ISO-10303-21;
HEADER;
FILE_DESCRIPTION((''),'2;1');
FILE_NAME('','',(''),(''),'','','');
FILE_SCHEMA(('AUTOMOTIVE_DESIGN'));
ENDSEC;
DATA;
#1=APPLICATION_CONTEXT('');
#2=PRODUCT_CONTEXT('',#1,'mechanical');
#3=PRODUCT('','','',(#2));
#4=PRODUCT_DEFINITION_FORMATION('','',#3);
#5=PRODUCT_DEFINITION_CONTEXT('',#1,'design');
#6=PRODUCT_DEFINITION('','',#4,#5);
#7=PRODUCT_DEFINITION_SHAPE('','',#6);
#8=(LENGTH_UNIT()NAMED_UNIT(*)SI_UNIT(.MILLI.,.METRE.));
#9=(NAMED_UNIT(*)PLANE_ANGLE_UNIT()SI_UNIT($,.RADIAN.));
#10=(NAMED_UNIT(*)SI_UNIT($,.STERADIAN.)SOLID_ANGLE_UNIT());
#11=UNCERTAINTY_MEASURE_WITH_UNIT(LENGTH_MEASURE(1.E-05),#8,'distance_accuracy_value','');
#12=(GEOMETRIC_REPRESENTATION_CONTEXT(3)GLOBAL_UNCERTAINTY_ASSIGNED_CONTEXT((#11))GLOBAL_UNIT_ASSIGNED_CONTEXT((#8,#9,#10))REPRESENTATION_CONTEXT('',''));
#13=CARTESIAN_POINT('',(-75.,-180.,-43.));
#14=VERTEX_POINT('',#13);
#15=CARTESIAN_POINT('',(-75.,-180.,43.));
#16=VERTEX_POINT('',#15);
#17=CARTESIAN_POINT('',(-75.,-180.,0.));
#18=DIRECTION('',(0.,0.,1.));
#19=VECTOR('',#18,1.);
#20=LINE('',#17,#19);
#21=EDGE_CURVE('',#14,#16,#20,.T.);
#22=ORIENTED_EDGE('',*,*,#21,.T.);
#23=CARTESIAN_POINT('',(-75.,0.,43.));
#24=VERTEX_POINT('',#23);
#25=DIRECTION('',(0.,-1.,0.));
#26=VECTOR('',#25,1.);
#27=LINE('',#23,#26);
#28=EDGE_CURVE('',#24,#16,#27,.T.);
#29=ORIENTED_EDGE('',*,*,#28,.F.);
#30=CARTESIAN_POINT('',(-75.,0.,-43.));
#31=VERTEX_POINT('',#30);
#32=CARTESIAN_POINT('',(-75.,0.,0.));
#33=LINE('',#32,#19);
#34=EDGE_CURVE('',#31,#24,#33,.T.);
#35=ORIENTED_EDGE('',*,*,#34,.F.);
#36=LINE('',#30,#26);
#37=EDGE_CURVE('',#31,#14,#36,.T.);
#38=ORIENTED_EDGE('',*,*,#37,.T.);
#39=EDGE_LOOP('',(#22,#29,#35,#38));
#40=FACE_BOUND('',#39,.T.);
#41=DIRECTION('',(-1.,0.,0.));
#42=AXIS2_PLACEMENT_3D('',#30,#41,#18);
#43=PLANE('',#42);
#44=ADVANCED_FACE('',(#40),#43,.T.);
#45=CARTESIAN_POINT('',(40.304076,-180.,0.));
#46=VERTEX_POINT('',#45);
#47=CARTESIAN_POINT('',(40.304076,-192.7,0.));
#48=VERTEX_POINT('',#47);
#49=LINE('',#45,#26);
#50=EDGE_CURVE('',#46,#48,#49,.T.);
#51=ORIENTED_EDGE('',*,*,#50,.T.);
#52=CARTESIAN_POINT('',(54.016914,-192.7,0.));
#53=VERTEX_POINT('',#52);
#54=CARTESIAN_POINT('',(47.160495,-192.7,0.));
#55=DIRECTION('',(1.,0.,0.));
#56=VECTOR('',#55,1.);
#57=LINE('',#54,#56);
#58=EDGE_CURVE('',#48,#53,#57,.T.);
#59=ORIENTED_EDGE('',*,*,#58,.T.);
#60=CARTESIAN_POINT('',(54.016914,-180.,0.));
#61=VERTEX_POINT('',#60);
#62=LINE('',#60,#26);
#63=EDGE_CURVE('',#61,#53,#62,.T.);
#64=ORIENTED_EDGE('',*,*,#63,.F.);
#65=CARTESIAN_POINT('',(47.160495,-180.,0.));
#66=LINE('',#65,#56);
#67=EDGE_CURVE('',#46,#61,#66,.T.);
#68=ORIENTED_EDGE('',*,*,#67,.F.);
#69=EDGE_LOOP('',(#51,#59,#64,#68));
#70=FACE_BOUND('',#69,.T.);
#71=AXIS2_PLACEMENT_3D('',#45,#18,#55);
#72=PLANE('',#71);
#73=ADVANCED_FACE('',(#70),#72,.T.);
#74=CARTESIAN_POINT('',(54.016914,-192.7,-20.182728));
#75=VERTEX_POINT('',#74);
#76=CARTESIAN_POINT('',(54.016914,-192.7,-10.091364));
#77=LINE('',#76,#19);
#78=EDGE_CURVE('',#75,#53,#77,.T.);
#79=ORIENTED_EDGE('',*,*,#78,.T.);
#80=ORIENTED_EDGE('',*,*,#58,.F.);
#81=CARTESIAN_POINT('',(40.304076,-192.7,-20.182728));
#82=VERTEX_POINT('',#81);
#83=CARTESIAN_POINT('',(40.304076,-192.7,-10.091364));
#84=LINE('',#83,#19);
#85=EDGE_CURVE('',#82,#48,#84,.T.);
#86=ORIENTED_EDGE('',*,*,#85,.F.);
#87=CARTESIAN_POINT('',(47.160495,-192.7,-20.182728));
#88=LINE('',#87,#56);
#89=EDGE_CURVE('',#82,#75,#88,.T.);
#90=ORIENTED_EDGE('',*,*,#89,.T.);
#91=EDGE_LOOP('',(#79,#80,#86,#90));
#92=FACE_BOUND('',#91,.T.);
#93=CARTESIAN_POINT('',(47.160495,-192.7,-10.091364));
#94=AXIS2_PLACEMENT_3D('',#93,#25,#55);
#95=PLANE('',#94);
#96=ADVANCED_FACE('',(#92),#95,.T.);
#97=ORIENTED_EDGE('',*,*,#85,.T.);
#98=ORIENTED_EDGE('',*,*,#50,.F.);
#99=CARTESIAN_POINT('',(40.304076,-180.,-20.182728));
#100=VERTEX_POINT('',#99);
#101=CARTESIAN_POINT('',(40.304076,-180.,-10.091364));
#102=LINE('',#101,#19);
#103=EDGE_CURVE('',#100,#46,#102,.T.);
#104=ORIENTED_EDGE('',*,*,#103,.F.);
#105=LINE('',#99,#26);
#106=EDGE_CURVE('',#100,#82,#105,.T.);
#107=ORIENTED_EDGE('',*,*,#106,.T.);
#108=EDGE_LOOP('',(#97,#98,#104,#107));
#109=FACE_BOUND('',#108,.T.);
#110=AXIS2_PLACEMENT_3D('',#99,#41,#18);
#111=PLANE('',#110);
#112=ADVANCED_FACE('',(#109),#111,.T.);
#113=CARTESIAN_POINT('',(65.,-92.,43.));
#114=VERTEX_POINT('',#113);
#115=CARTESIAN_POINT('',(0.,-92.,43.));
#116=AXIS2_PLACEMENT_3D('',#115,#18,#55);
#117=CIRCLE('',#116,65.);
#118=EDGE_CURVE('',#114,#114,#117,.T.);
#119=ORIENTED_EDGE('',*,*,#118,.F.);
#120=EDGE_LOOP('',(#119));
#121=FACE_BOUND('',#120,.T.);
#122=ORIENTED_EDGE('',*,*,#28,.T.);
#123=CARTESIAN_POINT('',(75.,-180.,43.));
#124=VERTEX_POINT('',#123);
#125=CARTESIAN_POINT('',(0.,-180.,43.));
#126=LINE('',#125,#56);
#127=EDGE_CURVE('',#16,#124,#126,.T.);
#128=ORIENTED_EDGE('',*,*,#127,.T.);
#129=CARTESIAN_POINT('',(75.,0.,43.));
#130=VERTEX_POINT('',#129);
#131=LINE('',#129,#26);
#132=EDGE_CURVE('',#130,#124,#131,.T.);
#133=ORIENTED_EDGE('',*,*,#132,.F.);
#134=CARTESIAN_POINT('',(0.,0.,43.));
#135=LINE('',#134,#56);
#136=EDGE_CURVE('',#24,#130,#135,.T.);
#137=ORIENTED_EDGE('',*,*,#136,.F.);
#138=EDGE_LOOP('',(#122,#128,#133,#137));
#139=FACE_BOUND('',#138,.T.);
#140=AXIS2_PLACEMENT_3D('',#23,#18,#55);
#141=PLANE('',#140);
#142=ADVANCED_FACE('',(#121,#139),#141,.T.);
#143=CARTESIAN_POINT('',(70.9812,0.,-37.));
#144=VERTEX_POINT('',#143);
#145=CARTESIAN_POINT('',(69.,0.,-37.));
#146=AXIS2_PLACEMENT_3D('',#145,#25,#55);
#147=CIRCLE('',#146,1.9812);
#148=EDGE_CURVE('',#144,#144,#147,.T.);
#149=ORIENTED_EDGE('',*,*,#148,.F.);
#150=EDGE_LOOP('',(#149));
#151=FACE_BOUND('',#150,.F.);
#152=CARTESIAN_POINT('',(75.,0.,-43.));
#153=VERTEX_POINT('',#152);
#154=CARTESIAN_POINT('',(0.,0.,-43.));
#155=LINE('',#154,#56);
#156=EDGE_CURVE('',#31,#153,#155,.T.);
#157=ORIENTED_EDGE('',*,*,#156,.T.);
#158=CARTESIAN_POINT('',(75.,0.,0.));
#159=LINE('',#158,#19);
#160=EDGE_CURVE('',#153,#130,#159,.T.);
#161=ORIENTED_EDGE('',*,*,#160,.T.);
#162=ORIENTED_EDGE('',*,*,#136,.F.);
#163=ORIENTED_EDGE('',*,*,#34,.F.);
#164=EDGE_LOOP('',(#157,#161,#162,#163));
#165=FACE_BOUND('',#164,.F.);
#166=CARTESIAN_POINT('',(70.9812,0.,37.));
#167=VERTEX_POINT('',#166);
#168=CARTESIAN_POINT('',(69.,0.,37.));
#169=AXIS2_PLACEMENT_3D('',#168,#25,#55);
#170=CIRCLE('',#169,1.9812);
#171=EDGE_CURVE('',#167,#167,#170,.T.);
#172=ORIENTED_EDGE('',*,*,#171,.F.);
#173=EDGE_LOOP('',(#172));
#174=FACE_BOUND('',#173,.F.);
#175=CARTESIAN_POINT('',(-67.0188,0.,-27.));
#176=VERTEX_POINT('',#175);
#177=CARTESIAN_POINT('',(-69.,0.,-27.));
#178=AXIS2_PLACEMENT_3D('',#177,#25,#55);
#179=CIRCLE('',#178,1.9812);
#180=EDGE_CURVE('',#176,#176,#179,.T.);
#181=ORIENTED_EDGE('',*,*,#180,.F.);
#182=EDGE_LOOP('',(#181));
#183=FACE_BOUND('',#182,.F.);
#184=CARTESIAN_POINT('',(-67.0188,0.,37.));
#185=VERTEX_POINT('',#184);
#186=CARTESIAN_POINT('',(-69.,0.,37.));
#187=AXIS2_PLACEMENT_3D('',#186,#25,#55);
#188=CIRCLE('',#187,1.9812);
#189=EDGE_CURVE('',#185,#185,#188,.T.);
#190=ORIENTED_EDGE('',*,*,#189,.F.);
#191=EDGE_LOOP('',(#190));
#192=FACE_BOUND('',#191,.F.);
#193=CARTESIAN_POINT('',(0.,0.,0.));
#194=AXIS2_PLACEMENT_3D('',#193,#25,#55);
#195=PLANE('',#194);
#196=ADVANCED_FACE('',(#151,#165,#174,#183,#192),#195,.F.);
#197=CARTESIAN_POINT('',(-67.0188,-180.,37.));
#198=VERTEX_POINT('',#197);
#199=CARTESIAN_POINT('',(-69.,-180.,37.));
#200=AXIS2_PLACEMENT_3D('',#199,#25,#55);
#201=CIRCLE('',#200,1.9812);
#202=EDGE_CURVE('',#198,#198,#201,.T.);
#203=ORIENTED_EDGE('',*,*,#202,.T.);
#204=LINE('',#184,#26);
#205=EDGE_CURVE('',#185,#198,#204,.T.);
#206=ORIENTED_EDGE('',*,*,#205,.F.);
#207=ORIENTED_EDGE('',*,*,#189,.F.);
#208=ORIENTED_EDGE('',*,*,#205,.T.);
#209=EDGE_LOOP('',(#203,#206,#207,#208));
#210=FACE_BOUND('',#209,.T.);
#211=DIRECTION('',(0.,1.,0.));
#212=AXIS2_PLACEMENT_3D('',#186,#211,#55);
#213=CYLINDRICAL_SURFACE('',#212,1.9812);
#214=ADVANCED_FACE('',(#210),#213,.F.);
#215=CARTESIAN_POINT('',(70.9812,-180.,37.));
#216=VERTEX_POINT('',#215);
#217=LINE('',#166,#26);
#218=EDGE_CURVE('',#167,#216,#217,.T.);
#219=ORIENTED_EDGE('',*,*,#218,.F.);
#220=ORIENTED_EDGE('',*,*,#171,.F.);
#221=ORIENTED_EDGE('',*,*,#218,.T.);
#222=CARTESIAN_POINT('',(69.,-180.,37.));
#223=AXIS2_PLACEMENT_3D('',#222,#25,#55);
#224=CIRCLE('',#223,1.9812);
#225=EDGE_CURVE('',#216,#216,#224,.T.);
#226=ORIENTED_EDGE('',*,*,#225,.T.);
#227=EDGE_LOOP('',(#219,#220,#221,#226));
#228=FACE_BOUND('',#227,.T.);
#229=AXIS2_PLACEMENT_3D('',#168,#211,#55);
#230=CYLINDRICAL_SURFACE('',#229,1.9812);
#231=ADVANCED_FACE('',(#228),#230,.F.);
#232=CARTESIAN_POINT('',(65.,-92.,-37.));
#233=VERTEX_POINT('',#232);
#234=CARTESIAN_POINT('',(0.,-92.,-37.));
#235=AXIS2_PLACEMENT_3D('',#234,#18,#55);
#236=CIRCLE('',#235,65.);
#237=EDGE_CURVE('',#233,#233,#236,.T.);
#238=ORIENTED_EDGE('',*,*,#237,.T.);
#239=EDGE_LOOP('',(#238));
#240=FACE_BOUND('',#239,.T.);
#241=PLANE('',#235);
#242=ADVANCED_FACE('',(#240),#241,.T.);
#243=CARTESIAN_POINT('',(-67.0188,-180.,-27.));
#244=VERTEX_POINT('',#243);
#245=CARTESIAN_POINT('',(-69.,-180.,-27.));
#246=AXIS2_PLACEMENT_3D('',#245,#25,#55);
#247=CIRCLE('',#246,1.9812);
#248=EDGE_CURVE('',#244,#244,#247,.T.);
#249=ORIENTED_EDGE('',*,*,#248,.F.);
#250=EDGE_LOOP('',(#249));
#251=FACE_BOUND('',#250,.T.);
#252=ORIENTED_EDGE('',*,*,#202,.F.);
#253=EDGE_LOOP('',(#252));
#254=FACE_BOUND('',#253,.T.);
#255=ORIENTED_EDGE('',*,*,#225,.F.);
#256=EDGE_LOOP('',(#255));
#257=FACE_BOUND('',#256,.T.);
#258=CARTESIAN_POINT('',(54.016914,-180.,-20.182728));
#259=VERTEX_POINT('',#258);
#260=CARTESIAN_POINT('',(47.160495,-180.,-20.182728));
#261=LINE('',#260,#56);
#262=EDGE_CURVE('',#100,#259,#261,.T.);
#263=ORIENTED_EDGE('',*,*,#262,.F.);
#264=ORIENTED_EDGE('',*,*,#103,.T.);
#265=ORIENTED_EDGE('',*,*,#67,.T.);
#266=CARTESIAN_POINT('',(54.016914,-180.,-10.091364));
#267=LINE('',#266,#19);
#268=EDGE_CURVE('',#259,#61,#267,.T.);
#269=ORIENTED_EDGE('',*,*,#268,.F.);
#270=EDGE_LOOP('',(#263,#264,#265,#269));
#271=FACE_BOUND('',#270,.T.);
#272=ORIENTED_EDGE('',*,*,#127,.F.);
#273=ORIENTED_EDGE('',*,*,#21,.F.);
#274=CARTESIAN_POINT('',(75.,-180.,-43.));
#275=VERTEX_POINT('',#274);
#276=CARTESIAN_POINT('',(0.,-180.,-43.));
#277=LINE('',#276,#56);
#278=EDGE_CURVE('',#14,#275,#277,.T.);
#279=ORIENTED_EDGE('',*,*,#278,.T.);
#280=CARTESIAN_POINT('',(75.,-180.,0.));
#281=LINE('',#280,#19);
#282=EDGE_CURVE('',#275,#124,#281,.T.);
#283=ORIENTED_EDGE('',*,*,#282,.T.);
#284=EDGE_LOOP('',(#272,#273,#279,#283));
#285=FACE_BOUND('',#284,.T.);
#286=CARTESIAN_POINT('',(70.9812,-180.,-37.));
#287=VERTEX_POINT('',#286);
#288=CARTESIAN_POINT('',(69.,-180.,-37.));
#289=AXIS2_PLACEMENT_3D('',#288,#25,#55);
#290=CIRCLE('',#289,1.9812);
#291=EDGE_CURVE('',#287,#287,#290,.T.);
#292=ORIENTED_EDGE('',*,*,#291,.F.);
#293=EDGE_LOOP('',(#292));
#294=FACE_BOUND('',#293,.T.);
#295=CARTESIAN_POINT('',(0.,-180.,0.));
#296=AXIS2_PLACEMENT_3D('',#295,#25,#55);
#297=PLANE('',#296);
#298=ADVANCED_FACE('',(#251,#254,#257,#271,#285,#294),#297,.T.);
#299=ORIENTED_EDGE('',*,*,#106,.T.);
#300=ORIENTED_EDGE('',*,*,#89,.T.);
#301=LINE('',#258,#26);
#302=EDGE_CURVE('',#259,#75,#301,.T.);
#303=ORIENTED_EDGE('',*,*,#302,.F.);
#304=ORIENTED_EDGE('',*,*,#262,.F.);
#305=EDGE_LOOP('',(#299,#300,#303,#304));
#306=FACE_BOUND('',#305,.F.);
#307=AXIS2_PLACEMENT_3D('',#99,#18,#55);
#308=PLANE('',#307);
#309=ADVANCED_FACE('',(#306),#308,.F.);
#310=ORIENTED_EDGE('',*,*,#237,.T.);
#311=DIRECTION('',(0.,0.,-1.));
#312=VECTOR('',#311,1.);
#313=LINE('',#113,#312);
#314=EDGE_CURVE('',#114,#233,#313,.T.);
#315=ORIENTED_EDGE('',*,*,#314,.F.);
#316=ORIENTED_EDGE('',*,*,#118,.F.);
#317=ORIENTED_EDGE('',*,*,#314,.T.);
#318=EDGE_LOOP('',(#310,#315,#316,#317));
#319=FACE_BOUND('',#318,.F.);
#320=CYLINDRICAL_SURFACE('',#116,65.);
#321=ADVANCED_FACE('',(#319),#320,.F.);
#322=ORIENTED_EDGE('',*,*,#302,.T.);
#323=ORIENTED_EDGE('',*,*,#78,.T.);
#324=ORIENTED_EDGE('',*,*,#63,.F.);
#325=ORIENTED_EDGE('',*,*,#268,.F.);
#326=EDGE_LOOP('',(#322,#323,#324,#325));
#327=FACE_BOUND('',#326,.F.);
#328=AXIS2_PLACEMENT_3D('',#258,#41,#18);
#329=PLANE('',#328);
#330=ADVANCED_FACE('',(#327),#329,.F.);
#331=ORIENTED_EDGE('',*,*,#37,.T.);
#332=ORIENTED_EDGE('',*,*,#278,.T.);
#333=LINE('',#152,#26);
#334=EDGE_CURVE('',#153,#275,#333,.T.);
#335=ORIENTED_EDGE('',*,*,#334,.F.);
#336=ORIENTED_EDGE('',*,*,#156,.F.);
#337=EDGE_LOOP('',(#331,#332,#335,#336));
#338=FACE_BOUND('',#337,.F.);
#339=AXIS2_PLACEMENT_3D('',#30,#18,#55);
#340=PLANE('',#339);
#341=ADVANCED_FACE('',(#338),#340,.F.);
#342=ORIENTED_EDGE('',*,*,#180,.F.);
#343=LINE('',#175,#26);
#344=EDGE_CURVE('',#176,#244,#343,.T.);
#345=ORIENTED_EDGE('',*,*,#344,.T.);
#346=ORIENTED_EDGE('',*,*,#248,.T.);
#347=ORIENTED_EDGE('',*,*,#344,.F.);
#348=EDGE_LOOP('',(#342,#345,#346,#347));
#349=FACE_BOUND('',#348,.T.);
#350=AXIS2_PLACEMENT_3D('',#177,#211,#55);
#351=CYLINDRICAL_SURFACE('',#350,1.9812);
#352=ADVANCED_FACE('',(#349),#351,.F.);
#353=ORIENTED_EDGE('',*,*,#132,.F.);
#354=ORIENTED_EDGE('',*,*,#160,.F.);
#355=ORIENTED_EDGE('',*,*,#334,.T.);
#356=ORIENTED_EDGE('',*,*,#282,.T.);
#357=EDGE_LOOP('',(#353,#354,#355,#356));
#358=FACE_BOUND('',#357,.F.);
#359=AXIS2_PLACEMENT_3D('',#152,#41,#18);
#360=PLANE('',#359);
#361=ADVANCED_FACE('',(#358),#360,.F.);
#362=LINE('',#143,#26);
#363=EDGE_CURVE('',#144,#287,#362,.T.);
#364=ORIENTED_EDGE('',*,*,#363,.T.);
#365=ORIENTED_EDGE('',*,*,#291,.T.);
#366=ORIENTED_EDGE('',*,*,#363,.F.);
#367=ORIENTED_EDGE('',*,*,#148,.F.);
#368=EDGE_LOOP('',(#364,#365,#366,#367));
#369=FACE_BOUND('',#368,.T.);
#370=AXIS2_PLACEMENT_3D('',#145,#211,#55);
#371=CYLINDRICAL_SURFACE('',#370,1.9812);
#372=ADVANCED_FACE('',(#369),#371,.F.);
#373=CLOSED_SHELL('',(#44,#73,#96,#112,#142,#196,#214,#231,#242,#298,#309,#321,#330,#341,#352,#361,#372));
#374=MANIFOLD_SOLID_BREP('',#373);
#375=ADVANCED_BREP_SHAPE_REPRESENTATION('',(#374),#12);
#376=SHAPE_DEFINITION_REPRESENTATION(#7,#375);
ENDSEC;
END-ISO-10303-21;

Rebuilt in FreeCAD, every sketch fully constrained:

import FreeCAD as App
import Part
import Sketcher

V = App.Vector
Q = App.Units.Quantity

doc = App.newDocument("Part")
params = doc.addObject("Spreadsheet::Sheet", "Params")
for row, (alias, value) in enumerate([
    ("sketch1_width", "150 mm"),
    ("sketch1_height", "86 mm"),
    ("pad1_length", "180 mm"),
    ("sketch2_diameter", "130 mm"),
    ("pocket1_length", "80 mm"),
    ("pad2_length", "12.7 mm"),
], start=1):
    params.set(f"A{row}", alias)
    params.set(f"B{row}", "=" + value)
    params.setAlias(f"B{row}", alias)

body = doc.addObject("PartDesign::Body", "Body")

sketch1 = body.newObject("Sketcher::SketchObject", "Sketch")
sketch1.AttachmentSupport = (doc.getObject("XZ_Plane"), [""])
sketch1.MapMode = "FlatFace"
sketch1.addGeometry(Part.LineSegment(V(-75, 43, 0), V(-75, -43, 0)), False)
sketch1.addGeometry(Part.LineSegment(V(-75, -43, 0), V(75, -43, 0)), False)
sketch1.addGeometry(Part.LineSegment(V(75, -43, 0), V(75, 43, 0)), False)
sketch1.addGeometry(Part.LineSegment(V(75, 43, 0), V(-75, 43, 0)), False)
sketch1.addGeometry(Part.Circle(V(-69, -27, 0), V(0, 0, 1), 1.9812), False)
sketch1.addGeometry(Part.Circle(V(69, -37, 0), V(0, 0, 1), 1.9812), False)
sketch1.addGeometry(Part.Circle(V(-69, 37, 0), V(0, 0, 1), 1.9812), False)
sketch1.addGeometry(Part.Circle(V(69, 37, 0), V(0, 0, 1), 1.9812), False)
sketch1.addConstraint(Sketcher.Constraint("Coincident", 0, 2, 1, 1))
sketch1.addConstraint(Sketcher.Constraint("Coincident", 1, 2, 2, 1))
sketch1.addConstraint(Sketcher.Constraint("Coincident", 2, 2, 3, 1))
sketch1.addConstraint(Sketcher.Constraint("Coincident", 3, 2, 0, 1))
sketch1.addConstraint(Sketcher.Constraint("Vertical", 0))
sketch1.addConstraint(Sketcher.Constraint("Horizontal", 1))
sketch1.addConstraint(Sketcher.Constraint("Vertical", 2))
sketch1.addConstraint(Sketcher.Constraint("Horizontal", 3))
sketch1.addConstraint(Sketcher.Constraint("Equal", 4, 5))
sketch1.addConstraint(Sketcher.Constraint("Equal", 5, 6))
sketch1.addConstraint(Sketcher.Constraint("Equal", 6, 7))
sketch1.addConstraint(Sketcher.Constraint("Symmetric", 5, 3, 6, 3, -1, 1))
sketch1.addConstraint(Sketcher.Constraint("Symmetric", 0, 2, 2, 2, -1, 1))
sketch1.addConstraint(Sketcher.Constraint("Symmetric", 6, 3, 7, 3, -2))
sketch1.addConstraint(Sketcher.Constraint("Vertical", 4, 3, 6, 3))
sketch1.addConstraint(Sketcher.Constraint("DistanceX", 1, 1, 1, 2, Q("150 mm")))
sketch1.addConstraint(Sketcher.Constraint("DistanceY", 0, 2, 0, 1, Q("86 mm")))
sketch1.addConstraint(Sketcher.Constraint("DistanceX", 4, 3, -1, 1, Q("69 mm")))
sketch1.addConstraint(Sketcher.Constraint("DistanceY", 4, 3, -1, 1, Q("27 mm")))
sketch1.addConstraint(Sketcher.Constraint("DistanceY", 5, 3, -1, 1, Q("37 mm")))
sketch1.addConstraint(Sketcher.Constraint("Diameter", 4, Q("3.9624 mm")))
sketch1.setExpression("Constraints[15]", "Params.sketch1_width")
sketch1.setExpression("Constraints[16]", "Params.sketch1_height")
pad1 = body.newObject("PartDesign::Pad", "Pad")
pad1.Profile = sketch1
pad1.setExpression("Length", "Params.pad1_length")

sketch2 = body.newObject("Sketcher::SketchObject", "Sketch001")
sketch2.AttachmentSupport = (doc.getObject("XY_Plane"), [""])
sketch2.MapMode = "FlatFace"
sketch2.AttachmentOffset = App.Placement(V(0, 0, 43), App.Rotation())
sketch2.addGeometry(Part.Circle(V(0, -92, 0), V(0, 0, 1), 65), False)
sketch2.addConstraint(Sketcher.Constraint("PointOnObject", 0, 3, -2))
sketch2.addConstraint(Sketcher.Constraint("Diameter", 0, Q("130 mm")))
sketch2.addConstraint(Sketcher.Constraint("DistanceY", 0, 3, -1, 1, Q("92 mm")))
sketch2.setExpression("Constraints[1]", "Params.sketch2_diameter")
pocket1 = body.newObject("PartDesign::Pocket", "Pocket")
pocket1.Profile = sketch2
pocket1.setExpression("Length", "Params.pocket1_length")

sketch3 = body.newObject("Sketcher::SketchObject", "Sketch002")
sketch3.AttachmentSupport = (doc.getObject("XZ_Plane"), [""])
sketch3.MapMode = "FlatFace"
sketch3.AttachmentOffset = App.Placement(V(0, 0, 180), App.Rotation())
sketch3.addGeometry(Part.LineSegment(V(40.304076, 0, 0), V(40.304076, -20.182728, 0)), False)
sketch3.addGeometry(Part.LineSegment(V(40.304076, -20.182728, 0), V(54.016914, -20.182728, 0)), False)
sketch3.addGeometry(Part.LineSegment(V(54.016914, -20.182728, 0), V(54.016914, 0, 0)), False)
sketch3.addGeometry(Part.LineSegment(V(54.016914, 0, 0), V(40.304076, 0, 0)), False)
sketch3.addConstraint(Sketcher.Constraint("Coincident", 0, 2, 1, 1))
sketch3.addConstraint(Sketcher.Constraint("Coincident", 1, 2, 2, 1))
sketch3.addConstraint(Sketcher.Constraint("Coincident", 2, 2, 3, 1))
sketch3.addConstraint(Sketcher.Constraint("Coincident", 3, 2, 0, 1))
sketch3.addConstraint(Sketcher.Constraint("Vertical", 0))
sketch3.addConstraint(Sketcher.Constraint("Horizontal", 1))
sketch3.addConstraint(Sketcher.Constraint("Vertical", 2))
sketch3.addConstraint(Sketcher.Constraint("Horizontal", 3))
sketch3.addConstraint(Sketcher.Constraint("PointOnObject", 2, 2, -1))
sketch3.addConstraint(Sketcher.Constraint("DistanceY", 0, 2, 0, 1, Q("20.182729 mm")))
sketch3.addConstraint(Sketcher.Constraint("DistanceX", 1, 1, 1, 2, Q("13.712838 mm")))
sketch3.addConstraint(Sketcher.Constraint("DistanceX", -1, 1, 0, 2, Q("40.304076 mm")))
pad2 = body.newObject("PartDesign::Pad", "Pad001")
pad2.Profile = sketch3
pad2.setExpression("Length", "Params.pad2_length")

doc.recompute()
